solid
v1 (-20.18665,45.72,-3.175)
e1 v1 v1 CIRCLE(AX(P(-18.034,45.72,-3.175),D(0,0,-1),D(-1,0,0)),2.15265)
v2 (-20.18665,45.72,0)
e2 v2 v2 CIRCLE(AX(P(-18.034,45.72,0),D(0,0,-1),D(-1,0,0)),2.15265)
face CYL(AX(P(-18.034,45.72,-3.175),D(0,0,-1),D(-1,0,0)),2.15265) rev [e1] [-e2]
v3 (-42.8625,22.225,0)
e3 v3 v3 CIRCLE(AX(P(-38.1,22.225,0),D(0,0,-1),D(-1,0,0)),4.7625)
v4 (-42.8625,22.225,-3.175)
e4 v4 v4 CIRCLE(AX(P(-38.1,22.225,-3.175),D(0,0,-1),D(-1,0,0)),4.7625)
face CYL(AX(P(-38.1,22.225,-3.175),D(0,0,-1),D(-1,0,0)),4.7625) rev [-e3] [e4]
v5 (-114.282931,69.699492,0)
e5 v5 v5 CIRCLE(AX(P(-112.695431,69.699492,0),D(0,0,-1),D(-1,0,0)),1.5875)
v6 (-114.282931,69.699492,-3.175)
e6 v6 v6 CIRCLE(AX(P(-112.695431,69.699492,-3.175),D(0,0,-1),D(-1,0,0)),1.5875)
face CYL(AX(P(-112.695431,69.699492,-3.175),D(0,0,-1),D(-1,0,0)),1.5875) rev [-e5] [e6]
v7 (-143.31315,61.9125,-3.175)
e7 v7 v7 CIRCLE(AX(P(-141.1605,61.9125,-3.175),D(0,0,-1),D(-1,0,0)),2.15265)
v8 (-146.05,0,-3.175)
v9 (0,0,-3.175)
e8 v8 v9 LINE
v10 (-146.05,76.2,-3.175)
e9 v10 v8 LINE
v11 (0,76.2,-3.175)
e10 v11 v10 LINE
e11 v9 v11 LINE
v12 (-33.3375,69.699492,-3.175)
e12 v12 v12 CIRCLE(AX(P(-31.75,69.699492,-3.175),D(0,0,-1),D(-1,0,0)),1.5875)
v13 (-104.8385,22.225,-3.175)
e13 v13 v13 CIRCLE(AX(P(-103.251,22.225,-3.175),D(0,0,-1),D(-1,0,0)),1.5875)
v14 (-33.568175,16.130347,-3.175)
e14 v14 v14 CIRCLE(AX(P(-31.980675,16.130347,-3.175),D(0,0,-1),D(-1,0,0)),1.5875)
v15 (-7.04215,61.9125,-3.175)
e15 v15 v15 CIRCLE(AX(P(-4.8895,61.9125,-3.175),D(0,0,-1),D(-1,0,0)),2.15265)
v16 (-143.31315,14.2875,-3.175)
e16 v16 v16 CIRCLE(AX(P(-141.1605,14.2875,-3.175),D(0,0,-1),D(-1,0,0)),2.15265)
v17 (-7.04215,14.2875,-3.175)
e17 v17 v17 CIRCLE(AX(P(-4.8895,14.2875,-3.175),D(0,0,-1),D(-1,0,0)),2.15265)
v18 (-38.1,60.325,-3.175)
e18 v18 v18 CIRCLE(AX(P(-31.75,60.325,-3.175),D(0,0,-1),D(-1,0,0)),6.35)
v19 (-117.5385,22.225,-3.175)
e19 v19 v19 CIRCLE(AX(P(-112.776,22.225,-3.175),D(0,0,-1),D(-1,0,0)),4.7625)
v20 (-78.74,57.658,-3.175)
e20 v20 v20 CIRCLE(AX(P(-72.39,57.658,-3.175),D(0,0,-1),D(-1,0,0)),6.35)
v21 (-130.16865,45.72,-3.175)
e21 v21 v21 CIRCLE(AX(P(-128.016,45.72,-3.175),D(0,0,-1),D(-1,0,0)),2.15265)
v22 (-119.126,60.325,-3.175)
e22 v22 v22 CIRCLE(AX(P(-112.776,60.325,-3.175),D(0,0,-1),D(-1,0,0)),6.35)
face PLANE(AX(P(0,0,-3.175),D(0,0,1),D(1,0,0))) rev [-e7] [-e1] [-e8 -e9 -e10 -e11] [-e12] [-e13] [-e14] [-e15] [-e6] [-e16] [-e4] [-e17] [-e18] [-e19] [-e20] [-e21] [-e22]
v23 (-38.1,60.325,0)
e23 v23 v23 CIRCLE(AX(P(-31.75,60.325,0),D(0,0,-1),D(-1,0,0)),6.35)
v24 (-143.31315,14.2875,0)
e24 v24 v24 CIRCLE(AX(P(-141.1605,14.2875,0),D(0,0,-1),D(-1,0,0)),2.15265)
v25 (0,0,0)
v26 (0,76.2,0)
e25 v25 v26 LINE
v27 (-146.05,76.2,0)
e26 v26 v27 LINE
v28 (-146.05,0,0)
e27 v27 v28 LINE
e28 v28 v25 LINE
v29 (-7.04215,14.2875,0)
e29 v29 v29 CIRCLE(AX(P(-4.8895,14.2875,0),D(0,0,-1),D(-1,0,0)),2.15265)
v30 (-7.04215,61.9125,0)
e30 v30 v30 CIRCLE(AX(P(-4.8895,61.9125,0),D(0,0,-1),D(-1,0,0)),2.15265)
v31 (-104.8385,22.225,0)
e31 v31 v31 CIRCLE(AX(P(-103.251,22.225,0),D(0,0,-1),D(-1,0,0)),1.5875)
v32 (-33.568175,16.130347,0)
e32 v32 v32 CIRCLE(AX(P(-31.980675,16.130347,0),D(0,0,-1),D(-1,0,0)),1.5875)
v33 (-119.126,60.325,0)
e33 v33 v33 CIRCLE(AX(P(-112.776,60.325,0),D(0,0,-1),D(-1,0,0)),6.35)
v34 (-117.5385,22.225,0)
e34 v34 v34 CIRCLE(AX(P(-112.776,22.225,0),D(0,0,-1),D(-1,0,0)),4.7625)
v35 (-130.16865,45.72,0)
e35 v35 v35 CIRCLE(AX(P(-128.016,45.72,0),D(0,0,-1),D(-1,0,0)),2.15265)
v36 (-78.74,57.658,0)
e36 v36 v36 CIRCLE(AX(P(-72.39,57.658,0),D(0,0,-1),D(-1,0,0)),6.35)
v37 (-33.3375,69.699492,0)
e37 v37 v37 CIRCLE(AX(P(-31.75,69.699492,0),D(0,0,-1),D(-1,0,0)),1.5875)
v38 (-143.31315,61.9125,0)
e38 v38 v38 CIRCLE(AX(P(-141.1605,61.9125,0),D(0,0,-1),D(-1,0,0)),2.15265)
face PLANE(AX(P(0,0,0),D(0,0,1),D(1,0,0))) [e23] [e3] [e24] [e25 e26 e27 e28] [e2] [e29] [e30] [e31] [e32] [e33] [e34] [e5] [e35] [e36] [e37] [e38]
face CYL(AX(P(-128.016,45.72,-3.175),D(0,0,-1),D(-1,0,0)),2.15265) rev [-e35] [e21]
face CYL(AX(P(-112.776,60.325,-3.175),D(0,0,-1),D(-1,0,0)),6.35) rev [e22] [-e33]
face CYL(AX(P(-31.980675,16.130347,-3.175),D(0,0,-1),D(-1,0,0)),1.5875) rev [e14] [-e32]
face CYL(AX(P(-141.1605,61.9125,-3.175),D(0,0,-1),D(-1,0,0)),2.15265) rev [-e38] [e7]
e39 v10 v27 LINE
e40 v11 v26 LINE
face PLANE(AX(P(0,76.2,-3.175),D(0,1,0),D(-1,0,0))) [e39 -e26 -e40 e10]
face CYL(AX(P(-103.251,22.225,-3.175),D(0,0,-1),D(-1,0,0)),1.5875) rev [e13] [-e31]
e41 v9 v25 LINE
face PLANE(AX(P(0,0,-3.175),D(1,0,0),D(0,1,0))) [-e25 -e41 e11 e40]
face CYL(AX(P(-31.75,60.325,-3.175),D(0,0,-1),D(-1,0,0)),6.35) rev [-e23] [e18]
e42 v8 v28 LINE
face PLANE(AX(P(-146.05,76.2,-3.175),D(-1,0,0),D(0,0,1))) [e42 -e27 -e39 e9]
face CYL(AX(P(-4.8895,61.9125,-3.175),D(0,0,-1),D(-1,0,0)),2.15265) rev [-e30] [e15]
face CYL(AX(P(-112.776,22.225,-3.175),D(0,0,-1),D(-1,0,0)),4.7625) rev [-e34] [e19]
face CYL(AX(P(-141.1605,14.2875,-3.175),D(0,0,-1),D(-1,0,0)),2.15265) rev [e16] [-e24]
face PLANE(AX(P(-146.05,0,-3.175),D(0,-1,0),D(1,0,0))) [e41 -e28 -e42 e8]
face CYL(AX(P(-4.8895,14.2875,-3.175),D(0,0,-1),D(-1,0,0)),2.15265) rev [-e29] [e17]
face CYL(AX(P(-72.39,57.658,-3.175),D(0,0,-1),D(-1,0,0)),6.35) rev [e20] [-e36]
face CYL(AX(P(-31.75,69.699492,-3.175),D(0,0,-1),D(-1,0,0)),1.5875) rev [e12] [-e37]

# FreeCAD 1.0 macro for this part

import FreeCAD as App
import Part
import Sketcher
Q = App.Units.Quantity


def add_polygon(sketch, points):
    """Adds a closed chain of lines whose ends are joined by coincident constraints."""
    first, n = sketch.GeometryCount, len(points)
    for a, b in zip(points, points[1:] + points[:1]):
        sketch.addGeometry(Part.LineSegment(App.Vector(*a, 0), App.Vector(*b, 0)), False)
    for i in range(n):
        sketch.addConstraint(Sketcher.Constraint("Coincident", first + i, 2, first + (i + 1) % n, 1))

doc = App.newDocument("Part")
params = doc.addObject("Spreadsheet::Sheet", "Params")
for row, (alias, value) in enumerate([
    ("sketch1_height", "3 in"),
    ("sketch1_width", "5.75 in"),
    ("pad1_length", "0.125 in"),
    ("hole_diameter", "0.1695 in"),
    ("sketch3_diameter", "0.5 in"),
    ("hole2_diameter", "0.5 in"),
    ("sketch4_diameter", "0.375 in"),
    ("hole3_diameter", "0.375 in"),
    ("sketch5_diameter", "0.125 in"),
    ("hole4_diameter", "0.125 in"),
], start=1):
    params.set(f"A{row}", alias)
    params.set(f"B{row}", "=" + value)
    params.setAlias(f"B{row}", alias)

body = doc.addObject("PartDesign::Body", "Body")

# Sketch on XY plane
sketch1 = doc.addObject("Sketcher::SketchObject", "Sketch")
body.addObject(sketch1)
sketch1.AttachmentSupport = (doc.XY_Plane, [""])
sketch1.MapMode = "FlatFace"
add_polygon(sketch1, [(-146, 76), (-146, 0), (0, 0), (0, 76)])  # lines 0-3
sketch1.addConstraint(Sketcher.Constraint("Vertical", 0))
sketch1.addConstraint(Sketcher.Constraint("Horizontal", 1))
sketch1.addConstraint(Sketcher.Constraint("Vertical", 2))
sketch1.addConstraint(Sketcher.Constraint("Horizontal", 3))
sketch1.addConstraint(Sketcher.Constraint("Coincident", 1, 2, -1, 1))
sketch1.addConstraint(Sketcher.Constraint("DistanceY", 0, 2, 0, 1, Q("3 in")))
sketch1.addConstraint(Sketcher.Constraint("DistanceX", 1, 1, 1, 2, Q("5.75 in")))
sketch1.setExpression("Constraints[9]", "Params.sketch1_height")
sketch1.setExpression("Constraints[10]", "Params.sketch1_width")
pad1 = doc.addObject("PartDesign::Pad", "Pad")
body.addObject(pad1)
pad1.Profile = sketch1
pad1.setExpression("Length", "Params.pad1_length")
pad1.Reversed = True

# Sketch on XY plane
sketch2 = doc.addObject("Sketcher::SketchObject", "Sketch001")
body.addObject(sketch2)
sketch2.AttachmentSupport = (doc.XY_Plane, [""])
sketch2.MapMode = "FlatFace"
sketch2.AttachmentOffset = App.Placement(App.Vector(0, 0, -0.125 * 25.4), App.Rotation())
sketch2.addGeometry(Part.Circle(App.Vector(-4.9, 61.9, 0), App.Vector(0, 0, 1), 2.2), False)
sketch2.addGeometry(Part.Circle(App.Vector(-4.9, 14.3, 0), App.Vector(0, 0, 1), 2.2), False)
sketch2.addGeometry(Part.Circle(App.Vector(-141.2, 14.3, 0), App.Vector(0, 0, 1), 2.2), False)
sketch2.addGeometry(Part.Circle(App.Vector(-141.2, 61.9, 0), App.Vector(0, 0, 1), 2.2), False)
sketch2.addGeometry(Part.Circle(App.Vector(-128, 45.7, 0), App.Vector(0, 0, 1), 2.2), False)
sketch2.addGeometry(Part.Circle(App.Vector(-18, 45.7, 0), App.Vector(0, 0, 1), 2.2), False)
sketch2.addConstraint(Sketcher.Constraint("Equal", 0, 1))
sketch2.addConstraint(Sketcher.Constraint("Equal", 1, 2))
sketch2.addConstraint(Sketcher.Constraint("Equal", 2, 3))
sketch2.addConstraint(Sketcher.Constraint("Equal", 3, 4))
sketch2.addConstraint(Sketcher.Constraint("Equal", 4, 5))
sketch2.addConstraint(Sketcher.Constraint("Horizontal", 1, 3, 2, 3))
sketch2.addConstraint(Sketcher.Constraint("Horizontal", 0, 3, 3, 3))
sketch2.addConstraint(Sketcher.Constraint("Horizontal", 4, 3, 5, 3))
sketch2.addConstraint(Sketcher.Constraint("Vertical", 0, 3, 1, 3))
sketch2.addConstraint(Sketcher.Constraint("Vertical", 2, 3, 3, 3))
sketch2.addConstraint(Sketcher.Constraint("Diameter", 0, Q("0.1695 in")))
sketch2.addConstraint(Sketcher.Constraint("DistanceY", -1, 1, 4, 3, Q("1.8 in")))
sketch2.addConstraint(Sketcher.Constraint("DistanceX", 4, 3, -1, 1, Q("5.04 in")))
sketch2.addConstraint(Sketcher.Constraint("DistanceX", 5, 3, -1, 1, Q("0.71 in")))
sketch2.addConstraint(Sketcher.Constraint("DistanceY", -1, 1, 0, 3, Q("2.4375 in")))
sketch2.addConstraint(Sketcher.Constraint("DistanceY", -1, 1, 1, 3, Q("0.5625 in")))
sketch2.addConstraint(Sketcher.Constraint("DistanceX", 2, 3, 1, 3, Q("5.365 in")))
sketch2.addConstraint(Sketcher.Constraint("DistanceX", 0, 3, -1, 1, Q("0.1925 in")))
doc.recompute()
hole = doc.addObject("PartDesign::Hole", "Hole")
body.addObject(hole)
hole.Profile = sketch2
hole.ThreadType = "None"
hole.setExpression("Diameter", "Params.hole_diameter")
hole.DepthType = "ThroughAll"
hole.Reversed = True

# Sketch on XY plane
sketch3 = doc.addObject("Sketcher::SketchObject", "Sketch002")
body.addObject(sketch3)
sketch3.AttachmentSupport = (doc.XY_Plane, [""])
sketch3.MapMode = "FlatFace"
sketch3.AttachmentOffset = App.Placement(App.Vector(0, 0, -0.125 * 25.4), App.Rotation())
sketch3.addGeometry(Part.Circle(App.Vector(-32, 60, 0), App.Vector(0, 0, 1), 6), False)
sketch3.addGeometry(Part.Circle(App.Vector(-72, 58, 0), App.Vector(0, 0, 1), 6), False)
sketch3.addGeometry(Part.Circle(App.Vector(-113, 60, 0), App.Vector(0, 0, 1), 6), False)
sketch3.addConstraint(Sketcher.Constraint("Equal", 0, 1))
sketch3.addConstraint(Sketcher.Constraint("Equal", 1, 2))
sketch3.addConstraint(Sketcher.Constraint("Horizontal", 0, 3, 2, 3))
sketch3.addConstraint(Sketcher.Constraint("Diameter", 0, Q("0.5 in")))
sketch3.addConstraint(Sketcher.Constraint("DistanceX", 1, 3, 0, 3, Q("1.6 in")))
sketch3.addConstraint(Sketcher.Constraint("DistanceX", 0, 3, -1, 1, Q("1.25 in")))
sketch3.addConstraint(Sketcher.Constraint("DistanceY", -1, 1, 1, 3, Q("2.27 in")))
sketch3.addConstraint(Sketcher.Constraint("DistanceX", 2, 3, -1, 1, Q("4.44 in")))
sketch3.addConstraint(Sketcher.Constraint("DistanceY", -1, 1, 0, 3, Q("2.375 in")))
sketch3.setExpression("Constraints[3]", "Params.sketch3_diameter")
doc.recompute()
hole2 = doc.addObject("PartDesign::Hole", "Hole001")
body.addObject(hole2)
hole2.Profile = sketch3
hole2.ThreadType = "None"
hole2.setExpression("Diameter", "Params.hole2_diameter")
hole2.DepthType = "ThroughAll"
hole2.Reversed = True

# Sketch on XY plane
sketch4 = doc.addObject("Sketcher::SketchObject", "Sketch003")
body.addObject(sketch4)
sketch4.AttachmentSupport = (doc.XY_Plane, [""])
sketch4.MapMode = "FlatFace"
sketch4.AttachmentOffset = App.Placement(App.Vector(0, 0, -0.125 * 25.4), App.Rotation())
sketch4.addGeometry(Part.Circle(App.Vector(-38.1, 22.2, 0), App.Vector(0, 0, 1), 4.8), False)
sketch4.addGeometry(Part.Circle(App.Vector(-112.8, 22.2, 0), App.Vector(0, 0, 1), 4.8), False)
sketch4.addConstraint(Sketcher.Constraint("Equal", 0, 1))
sketch4.addConstraint(Sketcher.Constraint("Horizontal", 0, 3, 1, 3))
sketch4.addConstraint(Sketcher.Constraint("Diameter", 0, Q("0.375 in")))
sketch4.addConstraint(Sketcher.Constraint("DistanceX", 0, 3, -1, 1, Q("1.5 in")))
sketch4.addConstraint(Sketcher.Constraint("DistanceX", 1, 3, -1, 1, Q("4.44 in")))
sketch4.addConstraint(Sketcher.Constraint("DistanceY", -1, 1, 0, 3, Q("0.875 in")))
sketch4.setExpression("Constraints[2]", "Params.sketch4_diameter")
doc.recompute()
hole3 = doc.addObject("PartDesign::Hole", "Hole002")
body.addObject(hole3)
hole3.Profile = sketch4
hole3.ThreadType = "None"
hole3.setExpression("Diameter", "Params.hole3_diameter")
hole3.DepthType = "ThroughAll"
hole3.Reversed = True

# Sketch on XY plane
sketch5 = doc.addObject("Sketcher::SketchObject", "Sketch004")
body.addObject(sketch5)
sketch5.AttachmentSupport = (doc.XY_Plane, [""])
sketch5.MapMode = "FlatFace"
sketch5.AttachmentOffset = App.Placement(App.Vector(0, 0, -0.125 * 25.4), App.Rotation())
sketch5.addGeometry(Part.Circle(App.Vector(-31.8, 69.7, 0), App.Vector(0, 0, 1), 1.6), False)
sketch5.addGeometry(Part.Circle(App.Vector(-112.7, 69.7, 0), App.Vector(0, 0, 1), 1.6), False)
sketch5.addGeometry(Part.Circle(App.Vector(-103.3, 22.2, 0), App.Vector(0, 0, 1), 1.6), False)
sketch5.addGeometry(Part.Circle(App.Vector(-32, 16.1, 0), App.Vector(0, 0, 1), 1.6), False)
sketch5.addConstraint(Sketcher.Constraint("Equal", 0, 1))
sketch5.addConstraint(Sketcher.Constraint("Equal", 1, 2))
sketch5.addConstraint(Sketcher.Constraint("Equal", 2, 3))
sketch5.addConstraint(Sketcher.Constraint("Horizontal", 0, 3, 1, 3))
sketch5.addConstraint(Sketcher.Constraint("Diameter", 0, Q("0.125 in")))
sketch5.addConstraint(Sketcher.Constraint("DistanceX", 0, 3, -1, 1, Q("1.25 in")))
sketch5.addConstraint(Sketcher.Constraint("DistanceX", 2, 3, -1, 1, Q("4.065 in")))
sketch5.addConstraint(Sketcher.Constraint("DistanceY", -1, 1, 2, 3, Q("0.875 in")))
sketch5.addConstraint(Sketcher.Constraint("DistanceX", 1, 3, -1, 1, 112.695431))
sketch5.addConstraint(Sketcher.Constraint("DistanceY", -1, 1, 0, 3, 69.699492))
sketch5.addConstraint(Sketcher.Constraint("DistanceX", 3, 3, -1, 1, 31.980675))
sketch5.addConstraint(Sketcher.Constraint("DistanceY", -1, 1, 3, 3, 16.130347))
sketch5.setExpression("Constraints[4]", "Params.sketch5_diameter")
doc.recompute()
hole4 = doc.addObject("PartDesign::Hole", "Hole003")
body.addObject(hole4)
hole4.Profile = sketch5
hole4.ThreadType = "None"
hole4.setExpression("Diameter", "Params.hole4_diameter")
hole4.DepthType = "ThroughAll"
hole4.Reversed = True

doc.recompute()
